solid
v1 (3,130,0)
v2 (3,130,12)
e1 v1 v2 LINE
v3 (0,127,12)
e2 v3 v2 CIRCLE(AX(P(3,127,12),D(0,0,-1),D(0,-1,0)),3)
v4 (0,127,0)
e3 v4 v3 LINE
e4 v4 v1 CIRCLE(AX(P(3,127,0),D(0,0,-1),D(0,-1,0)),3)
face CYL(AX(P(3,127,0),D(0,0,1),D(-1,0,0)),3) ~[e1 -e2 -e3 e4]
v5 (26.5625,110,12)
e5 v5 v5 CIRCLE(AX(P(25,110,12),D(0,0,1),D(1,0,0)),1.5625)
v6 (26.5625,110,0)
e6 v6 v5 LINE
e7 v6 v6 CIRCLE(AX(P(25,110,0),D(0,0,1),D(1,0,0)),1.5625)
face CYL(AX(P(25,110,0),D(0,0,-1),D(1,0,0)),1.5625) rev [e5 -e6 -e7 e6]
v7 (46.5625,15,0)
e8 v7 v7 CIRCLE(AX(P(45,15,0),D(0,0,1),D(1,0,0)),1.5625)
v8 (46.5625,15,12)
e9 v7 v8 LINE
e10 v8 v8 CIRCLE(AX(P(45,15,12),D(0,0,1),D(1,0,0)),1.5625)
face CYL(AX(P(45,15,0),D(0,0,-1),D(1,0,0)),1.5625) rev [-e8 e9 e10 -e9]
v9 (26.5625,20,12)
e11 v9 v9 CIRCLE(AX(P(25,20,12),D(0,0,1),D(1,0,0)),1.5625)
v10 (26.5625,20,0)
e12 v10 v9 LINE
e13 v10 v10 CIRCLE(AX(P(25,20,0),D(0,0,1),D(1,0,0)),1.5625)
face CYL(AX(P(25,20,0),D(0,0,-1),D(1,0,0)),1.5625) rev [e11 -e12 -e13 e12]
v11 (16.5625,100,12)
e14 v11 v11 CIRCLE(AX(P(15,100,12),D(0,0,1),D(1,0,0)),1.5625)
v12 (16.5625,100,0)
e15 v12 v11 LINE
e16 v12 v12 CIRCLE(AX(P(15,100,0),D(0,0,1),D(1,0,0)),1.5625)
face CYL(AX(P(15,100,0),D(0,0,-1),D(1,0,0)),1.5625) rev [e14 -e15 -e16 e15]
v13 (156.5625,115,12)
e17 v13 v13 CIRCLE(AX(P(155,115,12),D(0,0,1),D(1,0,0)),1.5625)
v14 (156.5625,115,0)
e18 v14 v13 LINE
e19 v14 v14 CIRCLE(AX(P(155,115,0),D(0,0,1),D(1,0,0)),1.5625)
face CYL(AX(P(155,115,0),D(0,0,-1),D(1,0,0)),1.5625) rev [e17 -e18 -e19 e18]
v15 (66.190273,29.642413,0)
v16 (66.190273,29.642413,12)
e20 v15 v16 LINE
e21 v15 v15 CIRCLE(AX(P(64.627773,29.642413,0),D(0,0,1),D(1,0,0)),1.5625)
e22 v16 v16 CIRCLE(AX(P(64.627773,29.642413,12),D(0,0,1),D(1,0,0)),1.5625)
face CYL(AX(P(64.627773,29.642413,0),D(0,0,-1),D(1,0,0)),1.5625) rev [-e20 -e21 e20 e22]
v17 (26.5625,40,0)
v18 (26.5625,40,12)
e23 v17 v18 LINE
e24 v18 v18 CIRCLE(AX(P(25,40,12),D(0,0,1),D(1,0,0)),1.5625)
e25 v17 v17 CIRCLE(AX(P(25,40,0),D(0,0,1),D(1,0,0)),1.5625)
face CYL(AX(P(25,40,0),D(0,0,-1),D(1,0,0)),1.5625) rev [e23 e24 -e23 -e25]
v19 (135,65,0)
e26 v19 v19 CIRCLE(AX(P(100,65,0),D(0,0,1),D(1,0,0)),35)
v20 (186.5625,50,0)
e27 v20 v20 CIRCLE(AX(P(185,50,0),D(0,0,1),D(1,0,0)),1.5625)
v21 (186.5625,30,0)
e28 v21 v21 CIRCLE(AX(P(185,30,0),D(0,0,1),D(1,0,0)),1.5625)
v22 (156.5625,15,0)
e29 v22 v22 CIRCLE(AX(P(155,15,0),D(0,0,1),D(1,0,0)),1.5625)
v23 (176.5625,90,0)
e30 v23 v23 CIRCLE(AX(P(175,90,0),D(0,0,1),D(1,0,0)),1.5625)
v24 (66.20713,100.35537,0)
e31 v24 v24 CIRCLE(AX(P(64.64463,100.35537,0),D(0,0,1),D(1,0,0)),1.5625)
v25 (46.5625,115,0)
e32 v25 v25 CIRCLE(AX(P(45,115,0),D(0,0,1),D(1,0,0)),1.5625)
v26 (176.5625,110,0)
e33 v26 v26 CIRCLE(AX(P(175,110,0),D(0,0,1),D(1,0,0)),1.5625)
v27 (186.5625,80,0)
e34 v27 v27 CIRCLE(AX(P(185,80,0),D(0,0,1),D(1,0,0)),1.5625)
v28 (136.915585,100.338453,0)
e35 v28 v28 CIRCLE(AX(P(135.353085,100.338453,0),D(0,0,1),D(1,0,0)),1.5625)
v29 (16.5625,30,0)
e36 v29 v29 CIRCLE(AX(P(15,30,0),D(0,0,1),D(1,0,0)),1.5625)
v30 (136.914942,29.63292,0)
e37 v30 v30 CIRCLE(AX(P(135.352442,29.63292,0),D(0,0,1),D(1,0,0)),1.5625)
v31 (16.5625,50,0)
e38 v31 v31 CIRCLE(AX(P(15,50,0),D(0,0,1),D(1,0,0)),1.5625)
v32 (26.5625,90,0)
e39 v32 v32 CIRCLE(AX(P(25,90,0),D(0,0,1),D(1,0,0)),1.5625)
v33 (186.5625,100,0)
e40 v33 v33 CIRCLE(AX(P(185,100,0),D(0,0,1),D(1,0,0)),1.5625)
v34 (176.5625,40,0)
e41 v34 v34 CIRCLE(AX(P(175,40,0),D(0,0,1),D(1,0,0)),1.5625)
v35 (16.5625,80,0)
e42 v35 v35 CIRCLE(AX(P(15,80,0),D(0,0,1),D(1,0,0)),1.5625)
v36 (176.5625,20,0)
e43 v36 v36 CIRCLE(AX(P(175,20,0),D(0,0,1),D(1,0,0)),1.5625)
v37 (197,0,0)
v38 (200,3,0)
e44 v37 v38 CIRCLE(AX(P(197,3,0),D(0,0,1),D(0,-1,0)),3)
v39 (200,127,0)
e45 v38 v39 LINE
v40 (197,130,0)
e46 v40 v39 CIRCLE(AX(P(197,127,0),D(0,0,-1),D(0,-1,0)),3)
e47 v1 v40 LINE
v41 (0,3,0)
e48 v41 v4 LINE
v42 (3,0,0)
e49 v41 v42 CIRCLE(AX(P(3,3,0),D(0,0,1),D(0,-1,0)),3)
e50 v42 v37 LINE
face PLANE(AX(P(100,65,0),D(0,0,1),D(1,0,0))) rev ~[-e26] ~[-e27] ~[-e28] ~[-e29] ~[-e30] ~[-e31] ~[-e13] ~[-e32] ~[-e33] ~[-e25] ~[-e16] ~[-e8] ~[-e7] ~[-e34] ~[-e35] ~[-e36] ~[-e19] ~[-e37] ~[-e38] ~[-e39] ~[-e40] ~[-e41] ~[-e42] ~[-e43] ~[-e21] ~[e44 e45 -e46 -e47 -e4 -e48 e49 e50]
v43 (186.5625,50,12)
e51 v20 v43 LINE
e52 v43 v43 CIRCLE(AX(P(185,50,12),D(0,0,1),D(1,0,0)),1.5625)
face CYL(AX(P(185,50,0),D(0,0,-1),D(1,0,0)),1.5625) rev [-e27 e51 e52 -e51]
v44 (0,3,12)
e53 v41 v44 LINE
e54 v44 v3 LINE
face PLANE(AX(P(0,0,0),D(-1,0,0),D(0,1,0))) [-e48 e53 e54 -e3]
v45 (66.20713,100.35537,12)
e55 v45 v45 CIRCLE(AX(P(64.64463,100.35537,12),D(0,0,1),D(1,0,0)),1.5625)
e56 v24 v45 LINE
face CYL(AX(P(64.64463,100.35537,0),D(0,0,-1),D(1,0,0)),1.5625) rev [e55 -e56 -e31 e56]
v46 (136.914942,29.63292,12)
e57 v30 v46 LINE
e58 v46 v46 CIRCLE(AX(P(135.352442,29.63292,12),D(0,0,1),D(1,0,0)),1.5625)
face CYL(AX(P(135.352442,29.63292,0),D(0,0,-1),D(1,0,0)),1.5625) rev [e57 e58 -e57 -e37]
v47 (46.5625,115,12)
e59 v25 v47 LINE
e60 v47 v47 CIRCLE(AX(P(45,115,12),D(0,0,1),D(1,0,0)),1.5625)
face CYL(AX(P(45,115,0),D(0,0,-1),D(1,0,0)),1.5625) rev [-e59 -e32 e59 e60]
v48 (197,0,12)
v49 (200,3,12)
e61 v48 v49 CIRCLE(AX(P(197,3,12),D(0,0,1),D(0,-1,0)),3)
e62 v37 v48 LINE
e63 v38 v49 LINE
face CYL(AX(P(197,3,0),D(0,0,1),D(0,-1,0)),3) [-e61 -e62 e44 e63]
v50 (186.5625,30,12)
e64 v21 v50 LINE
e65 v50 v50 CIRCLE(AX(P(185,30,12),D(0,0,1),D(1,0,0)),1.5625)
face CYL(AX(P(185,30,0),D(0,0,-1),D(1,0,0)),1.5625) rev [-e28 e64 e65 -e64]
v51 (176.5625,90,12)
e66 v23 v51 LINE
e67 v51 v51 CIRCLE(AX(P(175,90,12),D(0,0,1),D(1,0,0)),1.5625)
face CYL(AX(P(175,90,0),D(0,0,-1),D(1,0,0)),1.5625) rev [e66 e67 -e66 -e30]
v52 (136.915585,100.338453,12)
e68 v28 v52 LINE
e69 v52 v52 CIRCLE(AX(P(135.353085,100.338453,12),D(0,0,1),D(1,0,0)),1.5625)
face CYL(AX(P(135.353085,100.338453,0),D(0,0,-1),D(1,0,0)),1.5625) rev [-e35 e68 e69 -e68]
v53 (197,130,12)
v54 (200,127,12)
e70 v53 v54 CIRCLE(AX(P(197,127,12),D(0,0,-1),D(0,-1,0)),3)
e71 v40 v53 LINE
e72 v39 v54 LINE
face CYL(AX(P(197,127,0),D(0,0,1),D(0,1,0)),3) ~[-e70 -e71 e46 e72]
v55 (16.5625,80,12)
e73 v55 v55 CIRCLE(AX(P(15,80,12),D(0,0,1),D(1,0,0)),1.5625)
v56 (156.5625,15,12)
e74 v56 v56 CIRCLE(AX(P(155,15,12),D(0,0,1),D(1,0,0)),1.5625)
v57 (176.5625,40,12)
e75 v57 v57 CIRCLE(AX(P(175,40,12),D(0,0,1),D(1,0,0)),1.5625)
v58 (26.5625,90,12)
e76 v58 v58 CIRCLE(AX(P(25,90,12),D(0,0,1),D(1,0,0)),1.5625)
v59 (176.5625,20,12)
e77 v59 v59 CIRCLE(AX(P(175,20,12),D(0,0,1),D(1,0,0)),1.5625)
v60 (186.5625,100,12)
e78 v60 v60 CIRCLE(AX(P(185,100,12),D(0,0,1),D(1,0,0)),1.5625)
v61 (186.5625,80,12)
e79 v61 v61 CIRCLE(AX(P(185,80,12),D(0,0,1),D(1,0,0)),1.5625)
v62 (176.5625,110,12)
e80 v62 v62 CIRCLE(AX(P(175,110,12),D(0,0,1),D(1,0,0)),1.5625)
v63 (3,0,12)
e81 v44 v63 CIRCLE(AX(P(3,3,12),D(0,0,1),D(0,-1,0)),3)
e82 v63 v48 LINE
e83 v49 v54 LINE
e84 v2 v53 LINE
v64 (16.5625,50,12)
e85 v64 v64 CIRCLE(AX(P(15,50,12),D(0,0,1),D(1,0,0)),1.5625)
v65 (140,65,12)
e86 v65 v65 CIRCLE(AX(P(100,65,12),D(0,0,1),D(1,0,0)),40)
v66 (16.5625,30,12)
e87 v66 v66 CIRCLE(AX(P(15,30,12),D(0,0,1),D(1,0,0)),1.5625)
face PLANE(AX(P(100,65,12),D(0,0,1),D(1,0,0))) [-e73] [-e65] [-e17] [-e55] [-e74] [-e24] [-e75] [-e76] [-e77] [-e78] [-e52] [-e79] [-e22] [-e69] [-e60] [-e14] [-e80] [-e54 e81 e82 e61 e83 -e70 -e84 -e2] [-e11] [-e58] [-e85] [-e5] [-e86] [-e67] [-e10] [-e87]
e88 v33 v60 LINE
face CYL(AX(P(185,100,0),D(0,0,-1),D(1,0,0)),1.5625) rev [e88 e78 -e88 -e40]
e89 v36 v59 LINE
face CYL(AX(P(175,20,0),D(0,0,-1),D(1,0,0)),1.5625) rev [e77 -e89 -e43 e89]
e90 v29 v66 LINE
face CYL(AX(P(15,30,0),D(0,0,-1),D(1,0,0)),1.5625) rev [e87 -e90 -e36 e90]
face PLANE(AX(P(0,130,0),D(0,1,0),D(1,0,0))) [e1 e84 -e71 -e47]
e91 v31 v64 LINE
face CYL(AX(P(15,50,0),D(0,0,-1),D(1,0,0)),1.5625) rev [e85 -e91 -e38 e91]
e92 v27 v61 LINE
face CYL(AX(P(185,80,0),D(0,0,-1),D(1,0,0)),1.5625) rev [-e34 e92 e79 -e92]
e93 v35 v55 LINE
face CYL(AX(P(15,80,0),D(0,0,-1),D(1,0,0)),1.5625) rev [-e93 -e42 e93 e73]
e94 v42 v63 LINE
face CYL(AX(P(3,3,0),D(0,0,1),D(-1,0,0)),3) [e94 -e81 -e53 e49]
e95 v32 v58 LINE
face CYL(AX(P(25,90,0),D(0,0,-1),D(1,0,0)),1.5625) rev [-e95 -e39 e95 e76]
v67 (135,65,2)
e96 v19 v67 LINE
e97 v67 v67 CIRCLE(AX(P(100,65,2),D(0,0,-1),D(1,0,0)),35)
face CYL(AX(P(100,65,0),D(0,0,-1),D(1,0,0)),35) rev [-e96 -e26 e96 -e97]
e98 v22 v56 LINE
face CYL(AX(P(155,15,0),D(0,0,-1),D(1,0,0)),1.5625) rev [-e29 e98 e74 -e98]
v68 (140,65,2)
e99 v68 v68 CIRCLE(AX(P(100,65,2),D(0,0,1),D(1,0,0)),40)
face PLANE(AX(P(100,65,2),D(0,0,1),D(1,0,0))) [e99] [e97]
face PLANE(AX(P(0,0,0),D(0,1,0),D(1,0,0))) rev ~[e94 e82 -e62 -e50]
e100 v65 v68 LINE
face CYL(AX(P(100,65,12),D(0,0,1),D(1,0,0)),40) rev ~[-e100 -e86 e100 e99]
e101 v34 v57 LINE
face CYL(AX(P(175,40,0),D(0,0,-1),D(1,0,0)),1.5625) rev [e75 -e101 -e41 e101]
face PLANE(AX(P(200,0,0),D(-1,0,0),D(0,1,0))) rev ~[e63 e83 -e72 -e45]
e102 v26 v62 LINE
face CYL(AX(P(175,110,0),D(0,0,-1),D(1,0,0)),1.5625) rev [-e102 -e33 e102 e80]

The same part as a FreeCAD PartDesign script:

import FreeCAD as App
import Part
import Sketcher

V = App.Vector
Q = App.Units.Quantity


def edges_at(feature, points):
    """Names of the edges that pass closest to the given points."""
    edges = feature.Shape.Edges
    near = lambda p: min(range(len(edges)), key=lambda i: edges[i].distToShape(Part.Vertex(*p))[0])
    return sorted({f"Edge{near(p) + 1}" for p in points})

doc = App.newDocument("Part")
body = doc.addObject("PartDesign::Body", "Body")

# Sketch on XY plane
sketch1 = body.newObject("Sketcher::SketchObject", "Sketch")
sketch1.AttachmentSupport = (doc.getObject("XY_Plane"), [""])
sketch1.MapMode = "FlatFace"
sketch1.addGeometry([
    Part.LineSegment(V(0, 130, 0), V(0, 0, 0)),  # 0
    Part.LineSegment(V(0, 0, 0), V(200, 0, 0)),  # 1
    Part.LineSegment(V(200, 0, 0), V(200, 130, 0)),  # 2
    Part.LineSegment(V(200, 130, 0), V(0, 130, 0)),  # 3
    Part.Circle(V(25, 20, 0), V(0, 0, 1), 1.5625),  # 4
    Part.Circle(V(45, 15, 0), V(0, 0, 1), 1.5625),  # 5
    Part.Circle(V(15, 30, 0), V(0, 0, 1), 1.5625),  # 6
    Part.Circle(V(64.627773, 29.642413, 0), V(0, 0, 1), 1.5625),  # 7
    Part.Circle(V(25, 40, 0), V(0, 0, 1), 1.5625),  # 8
    Part.Circle(V(15, 50, 0), V(0, 0, 1), 1.5625),  # 9
    Part.Circle(V(135.352442, 29.63292, 0), V(0, 0, 1), 1.5625),  # 10
    Part.Circle(V(155, 15, 0), V(0, 0, 1), 1.5625),  # 11
    Part.Circle(V(175, 20, 0), V(0, 0, 1), 1.5625),  # 12
    Part.Circle(V(185, 30, 0), V(0, 0, 1), 1.5625),  # 13
    Part.Circle(V(175, 40, 0), V(0, 0, 1), 1.5625),  # 14
    Part.Circle(V(185, 50, 0), V(0, 0, 1), 1.5625),  # 15
    Part.Circle(V(15, 80, 0), V(0, 0, 1), 1.5625),  # 16
    Part.Circle(V(25, 90, 0), V(0, 0, 1), 1.5625),  # 17
    Part.Circle(V(15, 100, 0), V(0, 0, 1), 1.5625),  # 18
    Part.Circle(V(25, 110, 0), V(0, 0, 1), 1.5625),  # 19
    Part.Circle(V(45, 115, 0), V(0, 0, 1), 1.5625),  # 20
    Part.Circle(V(64.64463, 100.35537, 0), V(0, 0, 1), 1.5625),  # 21
    Part.Circle(V(100, 65, 0), V(0, 0, 1), 35),  # 22
    Part.Circle(V(185, 80, 0), V(0, 0, 1), 1.5625),  # 23
    Part.Circle(V(175, 90, 0), V(0, 0, 1), 1.5625),  # 24
    Part.Circle(V(135.353085, 100.338453, 0), V(0, 0, 1), 1.5625),  # 25
    Part.Circle(V(185, 100, 0), V(0, 0, 1), 1.5625),  # 26
    Part.Circle(V(155, 115, 0), V(0, 0, 1), 1.5625),  # 27
    Part.Circle(V(175, 110, 0), V(0, 0, 1), 1.5625),  # 28
], False)
sketch1.addConstraint([
    Sketcher.Constraint("Coincident", 0, 2, 1, 1),
    Sketcher.Constraint("Coincident", 1, 2, 2, 1),
    Sketcher.Constraint("Coincident", 2, 2, 3, 1),
    Sketcher.Constraint("Coincident", 3, 2, 0, 1),
    Sketcher.Constraint("Vertical", 0),
    Sketcher.Constraint("Horizontal", 1),
    Sketcher.Constraint("Vertical", 2),
    Sketcher.Constraint("Horizontal", 3),
    Sketcher.Constraint("Coincident", 0, 2, -1, 1),
    Sketcher.Constraint("Equal", 4, 5),
    Sketcher.Constraint("Equal", 5, 6),
    Sketcher.Constraint("Equal", 6, 7),
    Sketcher.Constraint("Equal", 7, 8),
    Sketcher.Constraint("Equal", 8, 9),
    Sketcher.Constraint("Equal", 9, 10),
    Sketcher.Constraint("Equal", 10, 11),
    Sketcher.Constraint("Equal", 11, 12),
    Sketcher.Constraint("Equal", 12, 13),
    Sketcher.Constraint("Equal", 13, 14),
    Sketcher.Constraint("Equal", 14, 15),
    Sketcher.Constraint("Equal", 15, 16),
    Sketcher.Constraint("Equal", 16, 17),
    Sketcher.Constraint("Equal", 17, 18),
    Sketcher.Constraint("Equal", 18, 19),
    Sketcher.Constraint("Equal", 19, 20),
    Sketcher.Constraint("Equal", 20, 21),
    Sketcher.Constraint("Equal", 21, 23),
    Sketcher.Constraint("Equal", 23, 24),
    Sketcher.Constraint("Equal", 24, 25),
    Sketcher.Constraint("Equal", 25, 26),
    Sketcher.Constraint("Equal", 26, 27),
    Sketcher.Constraint("Equal", 27, 28),
    Sketcher.Constraint("Horizontal", 5, 3, 11, 3),
    Sketcher.Constraint("Horizontal", 4, 3, 12, 3),
    Sketcher.Constraint("Horizontal", 6, 3, 13, 3),
    Sketcher.Constraint("Horizontal", 8, 3, 14, 3),
    Sketcher.Constraint("Horizontal", 9, 3, 15, 3),
    Sketcher.Constraint("Horizontal", 16, 3, 23, 3),
    Sketcher.Constraint("Horizontal", 17, 3, 24, 3),
    Sketcher.Constraint("Horizontal", 18, 3, 26, 3),
    Sketcher.Constraint("Horizontal", 20, 3, 27, 3),
    Sketcher.Constraint("Horizontal", 19, 3, 28, 3),
    Sketcher.Constraint("Vertical", 4, 3, 8, 3),
    Sketcher.Constraint("Vertical", 6, 3, 9, 3),
    Sketcher.Constraint("Vertical", 12, 3, 14, 3),
    Sketcher.Constraint("Vertical", 13, 3, 15, 3),
    Sketcher.Constraint("Vertical", 9, 3, 16, 3),
    Sketcher.Constraint("Vertical", 8, 3, 17, 3),
    Sketcher.Constraint("Vertical", 16, 3, 18, 3),
    Sketcher.Constraint("Vertical", 17, 3, 19, 3),
    Sketcher.Constraint("Vertical", 5, 3, 20, 3),
    Sketcher.Constraint("Vertical", 15, 3, 23, 3),
    Sketcher.Constraint("Vertical", 14, 3, 24, 3),
    Sketcher.Constraint("Vertical", 23, 3, 26, 3),
    Sketcher.Constraint("Vertical", 11, 3, 27, 3),
    Sketcher.Constraint("Vertical", 24, 3, 28, 3),
    Sketcher.Constraint("Diameter", 22, Q("70 mm")),
    Sketcher.Constraint("DistanceX", 1, 1, 1, 2, Q("200 mm")),
    Sketcher.Constraint("DistanceY", 0, 2, 0, 1, Q("130 mm")),
    Sketcher.Constraint("Diameter", 4, Q("3.125 mm")),
    Sketcher.Constraint("DistanceX", -1, 1, 4, 3, Q("25 mm")),
    Sketcher.Constraint("DistanceY", -1, 1, 4, 3, Q("20 mm")),
    Sketcher.Constraint("DistanceX", -1, 1, 5, 3, Q("45 mm")),
    Sketcher.Constraint("DistanceY", -1, 1, 5, 3, Q("15 mm")),
    Sketcher.Constraint("DistanceX", -1, 1, 6, 3, Q("15 mm")),
    Sketcher.Constraint("DistanceY", -1, 1, 6, 3, Q("30 mm")),
    Sketcher.Constraint("DistanceY", -1, 1, 8, 3, Q("40 mm")),
    Sketcher.Constraint("DistanceY", -1, 1, 9, 3, Q("50 mm")),
    Sketcher.Constraint("DistanceX", -1, 1, 11, 3, Q("155 mm")),
    Sketcher.Constraint("DistanceX", -1, 1, 12, 3, Q("175 mm")),
    Sketcher.Constraint("DistanceX", -1, 1, 13, 3, Q("185 mm")),
    Sketcher.Constraint("DistanceY", -1, 1, 16, 3, Q("80 mm")),
    Sketcher.Constraint("DistanceY", -1, 1, 17, 3, Q("90 mm")),
    Sketcher.Constraint("DistanceY", -1, 1, 18, 3, Q("100 mm")),
    Sketcher.Constraint("DistanceY", -1, 1, 19, 3, Q("110 mm")),
    Sketcher.Constraint("DistanceY", -1, 1, 20, 3, Q("115 mm")),
    Sketcher.Constraint("DistanceX", -1, 1, 22, 3, Q("100 mm")),
    Sketcher.Constraint("DistanceY", -1, 1, 22, 3, Q("65 mm")),
    Sketcher.Constraint("DistanceX", -1, 1, 10, 3, Q("135.352442 mm")),
    Sketcher.Constraint("DistanceY", -1, 1, 10, 3, Q("29.63292 mm")),
    Sketcher.Constraint("DistanceX", -1, 1, 21, 3, Q("64.64463 mm")),
    Sketcher.Constraint("DistanceY", -1, 1, 21, 3, Q("100.35537 mm")),
    Sketcher.Constraint("DistanceX", 7, 3, 10, 3, Q("70.724669 mm")),
    Sketcher.Constraint("DistanceY", -1, 1, 7, 3, Q("29.642413 mm")),
    Sketcher.Constraint("DistanceX", -1, 1, 25, 3, Q("135.353085 mm")),
    Sketcher.Constraint("DistanceY", -1, 1, 25, 3, Q("100.338453 mm")),
])
pad1 = body.newObject("PartDesign::Pad", "Pad")
pad1.Profile = sketch1
pad1.Length = 12

# Sketch on XY plane
sketch2 = body.newObject("Sketcher::SketchObject", "Sketch001")
sketch2.AttachmentSupport = (doc.getObject("XY_Plane"), [""])
sketch2.MapMode = "FlatFace"
sketch2.AttachmentOffset = App.Placement(V(0, 0, 12), App.Rotation())
sketch2.addGeometry(Part.Circle(V(100, 65, 0), V(0, 0, 1), 40), False)
sketch2.addConstraint([
    Sketcher.Constraint("Diameter", 0, Q("80 mm")),
    Sketcher.Constraint("DistanceX", -1, 1, 0, 3, Q("100 mm")),
    Sketcher.Constraint("DistanceY", -1, 1, 0, 3, Q("65 mm")),
])
pocket1 = body.newObject("PartDesign::Pocket", "Pocket")
pocket1.Profile = sketch2
pocket1.Length = 10
doc.recompute()

fillet = body.newObject("PartDesign::Fillet", "Fillet")
fillet.Base = (pocket1, edges_at(pocket1, [
    (200, 0, 6),
    (200, 130, 6),
    (0, 0, 6),
    (0, 130, 6),
]))
fillet.Radius = 3

doc.recompute()
